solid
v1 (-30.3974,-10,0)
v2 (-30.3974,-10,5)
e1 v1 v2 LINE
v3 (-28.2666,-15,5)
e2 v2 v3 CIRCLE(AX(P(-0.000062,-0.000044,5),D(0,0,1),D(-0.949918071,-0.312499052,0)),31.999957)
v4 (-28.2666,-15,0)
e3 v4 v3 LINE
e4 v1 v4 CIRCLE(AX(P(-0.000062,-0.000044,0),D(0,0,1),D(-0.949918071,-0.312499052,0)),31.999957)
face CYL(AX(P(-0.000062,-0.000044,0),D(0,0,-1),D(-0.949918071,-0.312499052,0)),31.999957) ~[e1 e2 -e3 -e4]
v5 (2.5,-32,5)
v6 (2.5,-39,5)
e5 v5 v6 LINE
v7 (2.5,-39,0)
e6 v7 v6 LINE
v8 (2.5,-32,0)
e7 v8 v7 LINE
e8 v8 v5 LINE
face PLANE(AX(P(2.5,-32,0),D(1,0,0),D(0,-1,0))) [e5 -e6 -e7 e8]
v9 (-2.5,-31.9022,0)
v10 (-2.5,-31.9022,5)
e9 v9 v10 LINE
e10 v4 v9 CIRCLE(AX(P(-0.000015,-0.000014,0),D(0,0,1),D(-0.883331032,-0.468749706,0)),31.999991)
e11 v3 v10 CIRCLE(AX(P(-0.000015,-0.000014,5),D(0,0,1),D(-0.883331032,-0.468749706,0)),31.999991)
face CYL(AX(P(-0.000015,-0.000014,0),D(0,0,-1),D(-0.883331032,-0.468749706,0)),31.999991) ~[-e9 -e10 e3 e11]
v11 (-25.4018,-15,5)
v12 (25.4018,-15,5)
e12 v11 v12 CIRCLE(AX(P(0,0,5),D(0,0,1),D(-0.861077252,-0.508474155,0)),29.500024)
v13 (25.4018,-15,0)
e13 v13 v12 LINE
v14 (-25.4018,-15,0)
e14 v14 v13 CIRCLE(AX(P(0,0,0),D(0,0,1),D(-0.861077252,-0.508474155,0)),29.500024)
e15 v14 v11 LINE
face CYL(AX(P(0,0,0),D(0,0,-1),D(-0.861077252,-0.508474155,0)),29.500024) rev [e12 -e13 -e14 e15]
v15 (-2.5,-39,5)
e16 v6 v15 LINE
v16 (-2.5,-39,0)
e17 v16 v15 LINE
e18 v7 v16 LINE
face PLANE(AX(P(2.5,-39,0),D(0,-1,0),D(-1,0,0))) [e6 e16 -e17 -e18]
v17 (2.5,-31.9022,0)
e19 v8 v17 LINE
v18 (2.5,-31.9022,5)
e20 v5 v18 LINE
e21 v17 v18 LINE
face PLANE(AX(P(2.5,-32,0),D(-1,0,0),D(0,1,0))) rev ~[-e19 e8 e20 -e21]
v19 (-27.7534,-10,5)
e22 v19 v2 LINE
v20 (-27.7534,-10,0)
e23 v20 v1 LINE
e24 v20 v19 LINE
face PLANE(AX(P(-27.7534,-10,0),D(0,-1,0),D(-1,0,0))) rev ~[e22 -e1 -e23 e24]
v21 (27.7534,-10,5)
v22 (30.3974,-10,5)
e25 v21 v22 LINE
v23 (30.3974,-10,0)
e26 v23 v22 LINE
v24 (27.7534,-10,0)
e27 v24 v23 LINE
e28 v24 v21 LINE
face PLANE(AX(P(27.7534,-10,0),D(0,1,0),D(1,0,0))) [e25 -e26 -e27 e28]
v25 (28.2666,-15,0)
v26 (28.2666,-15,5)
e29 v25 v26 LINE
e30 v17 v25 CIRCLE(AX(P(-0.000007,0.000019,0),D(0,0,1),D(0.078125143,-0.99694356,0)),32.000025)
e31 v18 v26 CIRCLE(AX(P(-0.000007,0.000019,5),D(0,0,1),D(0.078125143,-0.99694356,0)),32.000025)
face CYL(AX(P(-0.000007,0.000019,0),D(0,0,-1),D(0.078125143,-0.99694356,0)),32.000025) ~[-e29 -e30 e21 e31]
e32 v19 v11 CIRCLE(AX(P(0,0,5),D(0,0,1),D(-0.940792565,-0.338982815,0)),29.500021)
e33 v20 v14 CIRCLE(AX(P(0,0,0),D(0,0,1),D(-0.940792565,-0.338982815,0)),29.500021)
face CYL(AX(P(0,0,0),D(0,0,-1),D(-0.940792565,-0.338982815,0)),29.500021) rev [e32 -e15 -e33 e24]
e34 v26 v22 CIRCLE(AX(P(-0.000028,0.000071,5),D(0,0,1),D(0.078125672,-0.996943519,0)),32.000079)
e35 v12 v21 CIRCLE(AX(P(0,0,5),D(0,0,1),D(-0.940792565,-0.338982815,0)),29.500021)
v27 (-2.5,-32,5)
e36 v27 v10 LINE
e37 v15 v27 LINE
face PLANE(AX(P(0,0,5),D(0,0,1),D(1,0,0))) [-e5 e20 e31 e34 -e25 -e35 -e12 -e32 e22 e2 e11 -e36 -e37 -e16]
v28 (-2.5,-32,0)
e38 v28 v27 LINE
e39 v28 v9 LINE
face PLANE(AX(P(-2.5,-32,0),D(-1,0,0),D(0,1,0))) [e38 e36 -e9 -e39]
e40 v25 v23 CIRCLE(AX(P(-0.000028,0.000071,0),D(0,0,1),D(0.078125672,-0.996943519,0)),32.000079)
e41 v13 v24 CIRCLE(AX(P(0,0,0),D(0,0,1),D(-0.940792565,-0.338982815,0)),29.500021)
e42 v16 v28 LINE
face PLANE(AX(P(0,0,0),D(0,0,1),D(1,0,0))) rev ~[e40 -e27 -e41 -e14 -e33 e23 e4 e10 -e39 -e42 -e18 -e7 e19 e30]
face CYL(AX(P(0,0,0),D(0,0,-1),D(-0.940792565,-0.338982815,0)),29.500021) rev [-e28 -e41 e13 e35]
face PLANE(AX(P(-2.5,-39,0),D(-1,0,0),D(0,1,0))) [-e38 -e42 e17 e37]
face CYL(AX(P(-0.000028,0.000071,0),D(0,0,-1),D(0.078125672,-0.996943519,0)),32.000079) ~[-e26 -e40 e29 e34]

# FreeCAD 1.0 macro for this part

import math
import FreeCAD as App
import Part
import Sketcher
Q = App.Units.Quantity

doc = App.newDocument("Part")
body = doc.addObject("PartDesign::Body", "Body")

sketch1 = doc.addObject("Sketcher::SketchObject", "Sketch")
body.addObject(sketch1)
sketch1.AttachmentSupport = (doc.XY_Plane, [""])
sketch1.MapMode = "FlatFace"
sketch1.addGeometry([
    Part.ArcOfCircle(Part.Circle(App.Vector(0, 0, 0), App.Vector(0, 0, 1), 29.5), math.radians(-160), math.radians(-20)),
    Part.LineSegment(App.Vector(-27.8, -10, 0), App.Vector(-30.4, -10, 0)),
    Part.ArcOfCircle(Part.Circle(App.Vector(0, 0, 0), App.Vector(0, 0, 1), 32), math.radians(-161.79), math.radians(-152.05)),
    Part.ArcOfCircle(Part.Circle(App.Vector(0, 0, 0), App.Vector(0, 0, 1), 32), math.radians(-152), math.radians(-94)),
    Part.LineSegment(App.Vector(-2.5, -31.9, 0), App.Vector(-2.5, -39, 0)),
    Part.LineSegment(App.Vector(-2.5, -39, 0), App.Vector(2.5, -39, 0)),
    Part.LineSegment(App.Vector(2.5, -39, 0), App.Vector(2.5, -31.9, 0)),
    Part.ArcOfCircle(Part.Circle(App.Vector(0, 0, 0), App.Vector(0, 0, 1), 32), math.radians(-86), math.radians(-28)),
    Part.ArcOfCircle(Part.Circle(App.Vector(0, 0, 0), App.Vector(0, 0, 1), 32), math.radians(-27.95), math.radians(-18.21)),
    Part.LineSegment(App.Vector(30.4, -10, 0), App.Vector(27.8, -10, 0)),
], False)
sketch1.addConstraint([
    Sketcher.Constraint("Coincident", 0, 1, 1, 1),
    Sketcher.Constraint("Coincident", 1, 2, 2, 1),
    Sketcher.Constraint("Tangent", 2, 2, 3, 1),
    Sketcher.Constraint("Coincident", 3, 2, 4, 1),
    Sketcher.Constraint("Coincident", 4, 2, 5, 1),
    Sketcher.Constraint("Coincident", 5, 2, 6, 1),
    Sketcher.Constraint("Coincident", 6, 2, 7, 1),
    Sketcher.Constraint("Tangent", 7, 2, 8, 1),
    Sketcher.Constraint("Coincident", 8, 2, 9, 1),
    Sketcher.Constraint("Coincident", 9, 2, 0, 2),
    Sketcher.Constraint("Horizontal", 1),
    Sketcher.Constraint("Vertical", 4),
    Sketcher.Constraint("Horizontal", 5),
    Sketcher.Constraint("Vertical", 6),
    Sketcher.Constraint("Horizontal", 9),
    Sketcher.Constraint("Coincident", 0, 3, -1, 1),
    Sketcher.Constraint("Coincident", 2, 3, -1, 1),
    Sketcher.Constraint("Coincident", 7, 3, -1, 1),
    Sketcher.Constraint("Equal", 2, 3),
    Sketcher.Constraint("Equal", 3, 7),
    Sketcher.Constraint("Equal", 7, 8),
    Sketcher.Constraint("Horizontal", 3, 2, 6, 2),
    Sketcher.Constraint("Horizontal", 2, 2, 7, 2),
    Sketcher.Constraint("Horizontal", 1, 2, 8, 2),
    Sketcher.Constraint("DistanceX", 5, 1, 5, 2, Q("5 mm")),
    Sketcher.Constraint("Radius", 2, Q("32 mm")),
    Sketcher.Constraint("DistanceY", 2, 2, 0, 1, Q("5 mm")),
    Sketcher.Constraint("Radius", 0, Q("29.5 mm")),
    Sketcher.Constraint("DistanceY", 0, 1, -1, 1, Q("10 mm")),
    Sketcher.Constraint("DistanceY", 4, 2, -1, 1, Q("39 mm")),
])
pad1 = doc.addObject("PartDesign::Pad", "Pad")
body.addObject(pad1)
pad1.Profile = sketch1
pad1.Length = 5

doc.recompute()
